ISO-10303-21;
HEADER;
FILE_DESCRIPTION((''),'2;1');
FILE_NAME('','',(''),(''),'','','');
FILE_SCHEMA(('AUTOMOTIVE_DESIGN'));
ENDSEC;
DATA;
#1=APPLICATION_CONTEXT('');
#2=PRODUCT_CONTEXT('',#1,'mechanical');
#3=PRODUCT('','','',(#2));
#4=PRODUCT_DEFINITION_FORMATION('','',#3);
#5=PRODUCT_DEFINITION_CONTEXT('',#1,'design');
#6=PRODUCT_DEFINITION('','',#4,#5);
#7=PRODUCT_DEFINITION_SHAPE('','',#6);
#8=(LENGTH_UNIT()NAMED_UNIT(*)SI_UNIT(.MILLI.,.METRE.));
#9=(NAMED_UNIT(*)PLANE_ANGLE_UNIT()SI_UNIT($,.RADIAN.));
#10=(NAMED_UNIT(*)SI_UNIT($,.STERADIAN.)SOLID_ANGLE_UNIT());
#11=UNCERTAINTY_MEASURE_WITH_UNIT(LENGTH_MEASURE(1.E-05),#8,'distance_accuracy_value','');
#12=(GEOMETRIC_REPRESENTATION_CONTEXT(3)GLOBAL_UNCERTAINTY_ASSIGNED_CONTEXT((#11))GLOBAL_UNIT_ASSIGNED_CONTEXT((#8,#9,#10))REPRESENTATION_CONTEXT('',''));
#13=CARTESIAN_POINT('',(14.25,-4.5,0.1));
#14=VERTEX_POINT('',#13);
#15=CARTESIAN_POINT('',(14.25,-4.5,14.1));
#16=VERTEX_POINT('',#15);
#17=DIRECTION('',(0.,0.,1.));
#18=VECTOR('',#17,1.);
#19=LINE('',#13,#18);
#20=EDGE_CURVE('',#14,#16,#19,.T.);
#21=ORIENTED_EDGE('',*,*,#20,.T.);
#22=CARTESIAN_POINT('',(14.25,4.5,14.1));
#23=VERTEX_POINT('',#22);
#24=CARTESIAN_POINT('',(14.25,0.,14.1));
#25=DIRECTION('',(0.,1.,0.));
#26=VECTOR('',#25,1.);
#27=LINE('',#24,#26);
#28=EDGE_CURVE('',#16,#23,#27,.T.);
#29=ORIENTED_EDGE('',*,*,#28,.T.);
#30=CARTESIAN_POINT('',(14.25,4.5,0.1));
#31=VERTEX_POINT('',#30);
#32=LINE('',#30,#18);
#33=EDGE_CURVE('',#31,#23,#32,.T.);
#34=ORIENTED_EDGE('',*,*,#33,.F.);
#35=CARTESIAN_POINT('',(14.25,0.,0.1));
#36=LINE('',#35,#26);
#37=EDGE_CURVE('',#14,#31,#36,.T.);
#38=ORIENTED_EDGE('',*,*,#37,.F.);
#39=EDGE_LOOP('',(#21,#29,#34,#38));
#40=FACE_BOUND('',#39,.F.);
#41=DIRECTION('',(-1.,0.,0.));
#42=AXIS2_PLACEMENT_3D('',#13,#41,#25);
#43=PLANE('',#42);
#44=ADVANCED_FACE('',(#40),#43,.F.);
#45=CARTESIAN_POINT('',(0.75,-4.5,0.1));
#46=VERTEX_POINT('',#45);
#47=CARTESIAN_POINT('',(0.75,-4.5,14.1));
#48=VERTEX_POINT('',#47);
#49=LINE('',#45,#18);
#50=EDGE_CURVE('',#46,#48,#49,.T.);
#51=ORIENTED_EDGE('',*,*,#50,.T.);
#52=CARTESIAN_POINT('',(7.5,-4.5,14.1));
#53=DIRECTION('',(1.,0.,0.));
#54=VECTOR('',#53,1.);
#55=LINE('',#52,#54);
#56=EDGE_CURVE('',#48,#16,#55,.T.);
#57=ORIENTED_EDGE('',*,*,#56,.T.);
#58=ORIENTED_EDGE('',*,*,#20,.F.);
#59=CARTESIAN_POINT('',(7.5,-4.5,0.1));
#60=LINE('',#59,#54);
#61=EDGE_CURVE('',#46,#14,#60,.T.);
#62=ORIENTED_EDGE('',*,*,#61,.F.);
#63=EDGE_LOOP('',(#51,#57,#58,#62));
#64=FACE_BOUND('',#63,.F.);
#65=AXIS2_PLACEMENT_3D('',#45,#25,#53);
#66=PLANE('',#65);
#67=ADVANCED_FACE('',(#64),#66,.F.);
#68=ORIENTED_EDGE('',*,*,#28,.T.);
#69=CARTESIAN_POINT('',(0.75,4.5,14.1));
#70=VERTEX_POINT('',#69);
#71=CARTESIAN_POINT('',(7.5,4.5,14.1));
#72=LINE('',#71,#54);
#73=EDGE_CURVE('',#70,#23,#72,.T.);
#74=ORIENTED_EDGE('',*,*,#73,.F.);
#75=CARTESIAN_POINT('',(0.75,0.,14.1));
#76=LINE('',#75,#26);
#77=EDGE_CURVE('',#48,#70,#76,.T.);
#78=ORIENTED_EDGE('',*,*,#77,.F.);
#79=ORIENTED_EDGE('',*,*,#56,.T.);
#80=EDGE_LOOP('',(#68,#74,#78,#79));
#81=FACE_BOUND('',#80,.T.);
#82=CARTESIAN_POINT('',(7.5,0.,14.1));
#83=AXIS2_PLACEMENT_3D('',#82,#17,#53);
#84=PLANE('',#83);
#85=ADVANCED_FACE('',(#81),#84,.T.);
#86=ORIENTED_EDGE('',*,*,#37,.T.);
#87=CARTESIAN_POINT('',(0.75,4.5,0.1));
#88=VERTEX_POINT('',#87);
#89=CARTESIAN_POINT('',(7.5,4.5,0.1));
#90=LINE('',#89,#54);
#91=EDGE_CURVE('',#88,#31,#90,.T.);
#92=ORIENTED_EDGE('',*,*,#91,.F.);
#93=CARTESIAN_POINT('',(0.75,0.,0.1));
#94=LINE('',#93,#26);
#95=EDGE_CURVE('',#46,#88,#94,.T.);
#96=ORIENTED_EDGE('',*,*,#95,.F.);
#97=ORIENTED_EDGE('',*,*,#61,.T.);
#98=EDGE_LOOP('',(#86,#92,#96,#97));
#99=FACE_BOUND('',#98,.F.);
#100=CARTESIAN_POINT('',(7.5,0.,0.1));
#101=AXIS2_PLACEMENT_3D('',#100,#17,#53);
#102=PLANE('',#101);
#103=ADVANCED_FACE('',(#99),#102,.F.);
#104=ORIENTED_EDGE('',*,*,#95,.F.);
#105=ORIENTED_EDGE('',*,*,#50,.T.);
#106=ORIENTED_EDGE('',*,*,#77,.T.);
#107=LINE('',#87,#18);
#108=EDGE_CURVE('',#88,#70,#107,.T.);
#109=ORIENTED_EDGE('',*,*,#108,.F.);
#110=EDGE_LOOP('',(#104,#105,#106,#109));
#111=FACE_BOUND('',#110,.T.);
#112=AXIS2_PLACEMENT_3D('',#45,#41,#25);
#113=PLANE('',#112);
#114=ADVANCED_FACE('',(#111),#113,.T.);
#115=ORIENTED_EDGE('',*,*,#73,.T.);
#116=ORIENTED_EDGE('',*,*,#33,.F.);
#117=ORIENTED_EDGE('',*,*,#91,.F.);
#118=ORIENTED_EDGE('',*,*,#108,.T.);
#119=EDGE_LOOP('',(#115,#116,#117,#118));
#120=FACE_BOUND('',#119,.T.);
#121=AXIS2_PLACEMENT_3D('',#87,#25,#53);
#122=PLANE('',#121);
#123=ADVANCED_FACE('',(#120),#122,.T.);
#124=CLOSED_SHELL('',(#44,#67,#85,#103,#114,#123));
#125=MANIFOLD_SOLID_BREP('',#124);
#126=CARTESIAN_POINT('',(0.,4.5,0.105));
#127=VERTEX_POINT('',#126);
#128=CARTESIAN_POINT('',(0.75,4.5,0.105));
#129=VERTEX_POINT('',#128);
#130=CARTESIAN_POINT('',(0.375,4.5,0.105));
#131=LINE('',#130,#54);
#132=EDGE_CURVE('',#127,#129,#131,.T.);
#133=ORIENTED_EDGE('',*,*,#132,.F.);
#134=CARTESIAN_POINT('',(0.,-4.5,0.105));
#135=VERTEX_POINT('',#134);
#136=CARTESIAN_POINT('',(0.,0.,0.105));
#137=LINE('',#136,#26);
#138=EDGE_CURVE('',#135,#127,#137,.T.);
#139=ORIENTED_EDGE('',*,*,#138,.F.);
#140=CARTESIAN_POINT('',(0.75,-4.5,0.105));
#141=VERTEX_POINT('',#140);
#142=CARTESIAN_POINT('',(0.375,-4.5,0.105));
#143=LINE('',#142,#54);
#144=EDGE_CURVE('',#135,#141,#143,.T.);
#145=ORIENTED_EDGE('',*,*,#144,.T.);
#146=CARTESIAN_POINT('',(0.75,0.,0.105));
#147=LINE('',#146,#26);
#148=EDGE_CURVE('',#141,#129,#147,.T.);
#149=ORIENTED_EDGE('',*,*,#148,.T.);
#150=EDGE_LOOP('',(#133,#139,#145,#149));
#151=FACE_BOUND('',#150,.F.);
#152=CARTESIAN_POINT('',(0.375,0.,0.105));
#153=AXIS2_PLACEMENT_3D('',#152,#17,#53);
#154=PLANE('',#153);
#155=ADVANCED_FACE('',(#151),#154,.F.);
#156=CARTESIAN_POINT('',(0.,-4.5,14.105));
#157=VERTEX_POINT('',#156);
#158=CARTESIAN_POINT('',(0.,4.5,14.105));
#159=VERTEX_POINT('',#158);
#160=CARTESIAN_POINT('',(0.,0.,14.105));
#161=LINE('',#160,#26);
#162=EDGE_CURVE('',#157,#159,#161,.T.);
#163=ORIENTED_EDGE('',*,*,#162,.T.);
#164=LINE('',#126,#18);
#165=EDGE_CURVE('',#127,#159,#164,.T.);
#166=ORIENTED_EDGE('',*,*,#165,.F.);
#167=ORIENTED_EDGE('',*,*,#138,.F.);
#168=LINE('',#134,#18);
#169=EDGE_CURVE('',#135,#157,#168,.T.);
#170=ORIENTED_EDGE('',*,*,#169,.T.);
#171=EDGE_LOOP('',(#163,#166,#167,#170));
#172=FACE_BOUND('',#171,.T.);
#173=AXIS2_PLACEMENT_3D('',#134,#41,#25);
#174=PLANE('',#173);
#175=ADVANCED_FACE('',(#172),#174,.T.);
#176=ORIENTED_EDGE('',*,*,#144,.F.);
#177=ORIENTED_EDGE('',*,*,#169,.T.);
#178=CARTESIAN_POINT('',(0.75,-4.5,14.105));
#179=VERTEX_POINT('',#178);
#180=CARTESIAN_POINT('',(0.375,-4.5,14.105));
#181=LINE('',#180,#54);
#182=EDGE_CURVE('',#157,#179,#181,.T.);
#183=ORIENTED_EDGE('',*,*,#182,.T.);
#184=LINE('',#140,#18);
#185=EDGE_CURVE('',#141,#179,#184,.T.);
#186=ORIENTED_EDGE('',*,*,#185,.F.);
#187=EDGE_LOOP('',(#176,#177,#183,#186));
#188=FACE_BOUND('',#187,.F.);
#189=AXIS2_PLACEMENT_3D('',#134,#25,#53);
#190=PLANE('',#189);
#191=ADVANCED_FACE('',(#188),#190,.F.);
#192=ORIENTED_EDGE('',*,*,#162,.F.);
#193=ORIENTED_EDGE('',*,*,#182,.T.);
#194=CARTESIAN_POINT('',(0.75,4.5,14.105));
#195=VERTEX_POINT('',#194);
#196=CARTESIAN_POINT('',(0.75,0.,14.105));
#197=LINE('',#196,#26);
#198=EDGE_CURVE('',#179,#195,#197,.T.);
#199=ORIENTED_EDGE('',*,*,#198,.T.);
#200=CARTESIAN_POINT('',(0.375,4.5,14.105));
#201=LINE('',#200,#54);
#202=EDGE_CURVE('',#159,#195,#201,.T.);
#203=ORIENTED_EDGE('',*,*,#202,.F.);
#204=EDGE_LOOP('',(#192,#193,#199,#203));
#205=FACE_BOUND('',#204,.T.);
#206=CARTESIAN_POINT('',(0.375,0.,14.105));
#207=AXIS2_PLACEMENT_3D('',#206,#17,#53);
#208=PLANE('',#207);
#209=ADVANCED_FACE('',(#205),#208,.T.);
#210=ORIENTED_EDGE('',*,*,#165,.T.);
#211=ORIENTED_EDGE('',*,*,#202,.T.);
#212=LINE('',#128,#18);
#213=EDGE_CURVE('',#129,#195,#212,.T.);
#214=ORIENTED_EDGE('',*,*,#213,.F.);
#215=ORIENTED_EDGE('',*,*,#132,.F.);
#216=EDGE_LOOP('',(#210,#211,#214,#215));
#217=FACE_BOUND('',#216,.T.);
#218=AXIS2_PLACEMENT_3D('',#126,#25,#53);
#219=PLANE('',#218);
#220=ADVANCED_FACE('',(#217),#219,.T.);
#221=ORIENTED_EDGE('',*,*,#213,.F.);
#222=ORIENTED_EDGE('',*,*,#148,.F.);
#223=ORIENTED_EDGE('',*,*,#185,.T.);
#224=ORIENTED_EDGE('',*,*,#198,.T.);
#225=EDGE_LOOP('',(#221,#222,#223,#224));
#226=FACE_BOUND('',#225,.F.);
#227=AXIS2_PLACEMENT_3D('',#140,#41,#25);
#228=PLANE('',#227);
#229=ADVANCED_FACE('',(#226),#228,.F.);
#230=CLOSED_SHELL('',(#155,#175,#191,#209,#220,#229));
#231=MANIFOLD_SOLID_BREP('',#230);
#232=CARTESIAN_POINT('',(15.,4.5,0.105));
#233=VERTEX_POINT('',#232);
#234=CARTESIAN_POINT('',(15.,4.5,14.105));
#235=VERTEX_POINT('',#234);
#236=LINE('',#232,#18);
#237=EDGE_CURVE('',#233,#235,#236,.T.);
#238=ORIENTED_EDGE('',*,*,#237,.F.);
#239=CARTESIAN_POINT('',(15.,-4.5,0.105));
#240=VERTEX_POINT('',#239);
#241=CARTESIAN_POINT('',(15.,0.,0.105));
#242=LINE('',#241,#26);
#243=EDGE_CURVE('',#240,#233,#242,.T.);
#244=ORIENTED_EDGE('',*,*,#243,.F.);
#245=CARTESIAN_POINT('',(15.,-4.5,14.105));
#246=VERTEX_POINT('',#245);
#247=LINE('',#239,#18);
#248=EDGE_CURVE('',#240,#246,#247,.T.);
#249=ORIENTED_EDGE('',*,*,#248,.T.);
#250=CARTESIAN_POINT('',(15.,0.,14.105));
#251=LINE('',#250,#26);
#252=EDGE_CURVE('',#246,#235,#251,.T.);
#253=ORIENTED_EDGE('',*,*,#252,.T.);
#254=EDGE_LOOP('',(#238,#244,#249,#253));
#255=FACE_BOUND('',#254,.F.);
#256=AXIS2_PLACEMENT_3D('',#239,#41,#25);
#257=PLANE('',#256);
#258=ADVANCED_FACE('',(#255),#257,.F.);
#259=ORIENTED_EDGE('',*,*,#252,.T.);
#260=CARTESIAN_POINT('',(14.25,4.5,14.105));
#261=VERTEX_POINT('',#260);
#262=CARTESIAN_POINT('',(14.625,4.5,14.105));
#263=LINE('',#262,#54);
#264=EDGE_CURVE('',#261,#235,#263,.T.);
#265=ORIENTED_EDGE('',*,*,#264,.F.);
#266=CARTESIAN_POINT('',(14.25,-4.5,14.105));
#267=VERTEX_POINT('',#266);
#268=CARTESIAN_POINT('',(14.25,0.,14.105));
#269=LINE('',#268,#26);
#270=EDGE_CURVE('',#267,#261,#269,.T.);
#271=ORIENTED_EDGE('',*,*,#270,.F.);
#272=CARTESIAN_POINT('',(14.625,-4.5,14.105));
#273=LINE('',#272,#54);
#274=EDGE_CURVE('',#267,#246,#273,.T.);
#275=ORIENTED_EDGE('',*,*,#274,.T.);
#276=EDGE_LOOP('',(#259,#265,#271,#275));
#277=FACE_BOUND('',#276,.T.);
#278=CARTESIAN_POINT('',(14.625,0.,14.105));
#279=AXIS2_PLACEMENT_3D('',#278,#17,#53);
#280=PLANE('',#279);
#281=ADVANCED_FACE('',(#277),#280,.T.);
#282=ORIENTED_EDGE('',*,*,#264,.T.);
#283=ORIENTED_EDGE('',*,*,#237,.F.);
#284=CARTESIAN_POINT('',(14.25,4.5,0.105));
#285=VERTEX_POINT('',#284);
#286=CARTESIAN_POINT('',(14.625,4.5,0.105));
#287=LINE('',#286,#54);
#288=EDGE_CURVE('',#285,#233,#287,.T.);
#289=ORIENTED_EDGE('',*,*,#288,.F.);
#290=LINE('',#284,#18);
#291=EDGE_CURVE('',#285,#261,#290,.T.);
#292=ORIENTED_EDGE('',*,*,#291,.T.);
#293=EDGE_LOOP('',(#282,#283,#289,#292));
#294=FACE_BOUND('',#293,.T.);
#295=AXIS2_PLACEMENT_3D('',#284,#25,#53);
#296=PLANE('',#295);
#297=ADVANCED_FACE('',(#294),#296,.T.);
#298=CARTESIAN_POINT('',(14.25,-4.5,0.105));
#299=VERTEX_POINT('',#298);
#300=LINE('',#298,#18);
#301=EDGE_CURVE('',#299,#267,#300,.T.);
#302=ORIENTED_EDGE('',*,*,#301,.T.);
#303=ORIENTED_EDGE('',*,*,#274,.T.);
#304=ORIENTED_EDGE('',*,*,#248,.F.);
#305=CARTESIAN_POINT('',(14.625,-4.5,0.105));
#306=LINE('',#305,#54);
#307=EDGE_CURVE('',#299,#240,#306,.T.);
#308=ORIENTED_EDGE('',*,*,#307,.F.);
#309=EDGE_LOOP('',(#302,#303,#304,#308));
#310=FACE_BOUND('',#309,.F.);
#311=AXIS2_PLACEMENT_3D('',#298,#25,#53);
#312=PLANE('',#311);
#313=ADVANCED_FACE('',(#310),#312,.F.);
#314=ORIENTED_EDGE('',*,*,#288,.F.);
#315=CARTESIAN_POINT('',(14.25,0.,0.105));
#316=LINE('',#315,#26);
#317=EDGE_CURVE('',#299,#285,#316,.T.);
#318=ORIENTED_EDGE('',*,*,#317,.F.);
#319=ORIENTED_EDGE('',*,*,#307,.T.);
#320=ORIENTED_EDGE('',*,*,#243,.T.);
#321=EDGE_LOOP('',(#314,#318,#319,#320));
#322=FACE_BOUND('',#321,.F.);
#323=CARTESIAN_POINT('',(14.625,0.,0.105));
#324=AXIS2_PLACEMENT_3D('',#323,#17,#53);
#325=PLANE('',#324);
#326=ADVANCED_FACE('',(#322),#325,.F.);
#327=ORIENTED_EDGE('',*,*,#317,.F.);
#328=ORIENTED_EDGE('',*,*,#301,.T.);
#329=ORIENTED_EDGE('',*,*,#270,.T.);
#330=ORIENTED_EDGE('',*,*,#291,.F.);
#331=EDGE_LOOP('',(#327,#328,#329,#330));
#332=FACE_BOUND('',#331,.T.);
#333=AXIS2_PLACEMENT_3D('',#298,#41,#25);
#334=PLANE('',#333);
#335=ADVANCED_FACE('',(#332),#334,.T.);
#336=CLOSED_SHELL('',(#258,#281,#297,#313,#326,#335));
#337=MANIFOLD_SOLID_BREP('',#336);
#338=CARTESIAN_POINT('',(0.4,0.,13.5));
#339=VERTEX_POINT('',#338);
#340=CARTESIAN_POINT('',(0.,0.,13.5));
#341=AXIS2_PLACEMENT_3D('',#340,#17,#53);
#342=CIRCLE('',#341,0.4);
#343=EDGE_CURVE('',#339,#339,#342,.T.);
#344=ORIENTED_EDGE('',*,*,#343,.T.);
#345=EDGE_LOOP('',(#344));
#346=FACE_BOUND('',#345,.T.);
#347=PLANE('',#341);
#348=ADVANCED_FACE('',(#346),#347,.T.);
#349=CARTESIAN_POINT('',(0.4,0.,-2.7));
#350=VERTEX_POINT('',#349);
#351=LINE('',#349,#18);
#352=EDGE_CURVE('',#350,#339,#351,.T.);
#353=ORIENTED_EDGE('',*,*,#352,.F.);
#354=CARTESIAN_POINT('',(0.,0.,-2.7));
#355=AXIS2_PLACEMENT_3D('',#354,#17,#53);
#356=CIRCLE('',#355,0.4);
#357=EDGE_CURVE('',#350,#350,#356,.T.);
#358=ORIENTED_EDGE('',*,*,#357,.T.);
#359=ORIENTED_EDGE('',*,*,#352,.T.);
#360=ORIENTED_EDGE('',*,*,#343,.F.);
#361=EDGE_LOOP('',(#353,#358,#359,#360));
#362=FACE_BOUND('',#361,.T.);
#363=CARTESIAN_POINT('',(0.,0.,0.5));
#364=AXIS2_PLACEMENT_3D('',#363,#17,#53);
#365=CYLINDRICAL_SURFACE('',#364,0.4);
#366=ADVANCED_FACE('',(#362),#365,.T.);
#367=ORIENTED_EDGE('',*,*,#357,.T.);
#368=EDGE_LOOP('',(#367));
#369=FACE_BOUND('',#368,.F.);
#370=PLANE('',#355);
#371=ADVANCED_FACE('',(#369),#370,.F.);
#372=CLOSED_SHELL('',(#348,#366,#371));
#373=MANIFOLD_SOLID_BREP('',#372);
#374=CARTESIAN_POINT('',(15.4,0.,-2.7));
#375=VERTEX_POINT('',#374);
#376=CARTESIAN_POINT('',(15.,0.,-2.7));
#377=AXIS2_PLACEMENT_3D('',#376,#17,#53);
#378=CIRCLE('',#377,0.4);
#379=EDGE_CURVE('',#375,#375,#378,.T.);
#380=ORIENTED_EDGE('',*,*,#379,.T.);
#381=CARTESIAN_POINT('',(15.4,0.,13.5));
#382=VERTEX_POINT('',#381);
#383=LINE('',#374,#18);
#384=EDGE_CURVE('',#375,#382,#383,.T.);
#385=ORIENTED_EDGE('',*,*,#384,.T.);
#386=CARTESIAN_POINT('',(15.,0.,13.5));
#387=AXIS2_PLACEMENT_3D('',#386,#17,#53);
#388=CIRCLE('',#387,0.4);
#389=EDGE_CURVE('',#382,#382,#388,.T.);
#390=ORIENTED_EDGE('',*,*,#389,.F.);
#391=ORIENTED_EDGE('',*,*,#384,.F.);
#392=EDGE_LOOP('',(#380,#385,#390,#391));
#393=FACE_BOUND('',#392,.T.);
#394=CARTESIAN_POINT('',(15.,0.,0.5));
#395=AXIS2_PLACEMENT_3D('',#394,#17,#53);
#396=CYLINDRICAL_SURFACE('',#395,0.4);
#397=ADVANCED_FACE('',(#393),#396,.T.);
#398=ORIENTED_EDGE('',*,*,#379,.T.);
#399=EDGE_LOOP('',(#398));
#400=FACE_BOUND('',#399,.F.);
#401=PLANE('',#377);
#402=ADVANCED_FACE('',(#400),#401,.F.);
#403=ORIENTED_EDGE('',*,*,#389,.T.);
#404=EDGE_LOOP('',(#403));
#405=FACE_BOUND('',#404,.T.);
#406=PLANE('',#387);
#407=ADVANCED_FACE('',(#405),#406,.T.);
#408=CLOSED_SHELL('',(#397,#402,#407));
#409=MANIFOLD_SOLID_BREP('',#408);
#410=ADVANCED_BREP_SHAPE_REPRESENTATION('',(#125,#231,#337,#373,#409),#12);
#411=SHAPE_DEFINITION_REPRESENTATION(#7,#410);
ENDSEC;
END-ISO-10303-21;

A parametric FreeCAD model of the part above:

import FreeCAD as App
import Part
import Sketcher
from FreeCAD import Vector

doc = App.newDocument("Part")
body = doc.addObject("PartDesign::Body", "Body")

sketch1 = body.newObject("Sketcher::SketchObject", "Sketch")
sketch1.AttachmentSupport = (doc.getObject("XY_Plane"), [""])
sketch1.MapMode = "FlatFace"
sketch1.AttachmentOffset = App.Placement(Vector(0, 0, 0.1), App.Rotation())
sketch1.addGeometry(Part.LineSegment(Vector(0.75, 4.5, 0), Vector(0.75, -4.5, 0)), False)
sketch1.addGeometry(Part.LineSegment(Vector(0.75, -4.5, 0), Vector(14.25, -4.5, 0)), False)
sketch1.addGeometry(Part.LineSegment(Vector(14.25, -4.5, 0), Vector(14.25, 4.5, 0)), False)
sketch1.addGeometry(Part.LineSegment(Vector(14.25, 4.5, 0), Vector(0.75, 4.5, 0)), False)
sketch1.addConstraint(Sketcher.Constraint("Coincident", 0, 2, 1, 1))
sketch1.addConstraint(Sketcher.Constraint("Coincident", 1, 2, 2, 1))
sketch1.addConstraint(Sketcher.Constraint("Coincident", 2, 2, 3, 1))
sketch1.addConstraint(Sketcher.Constraint("Coincident", 3, 2, 0, 1))
sketch1.addConstraint(Sketcher.Constraint("Vertical", 0))
sketch1.addConstraint(Sketcher.Constraint("Horizontal", 1))
sketch1.addConstraint(Sketcher.Constraint("Vertical", 2))
sketch1.addConstraint(Sketcher.Constraint("Horizontal", 3))
sketch1.addConstraint(Sketcher.Constraint("DistanceY", 0, 2, 0, 1, 9.0))
sketch1.addConstraint(Sketcher.Constraint("DistanceX", 1, 1, 1, 2, 13.5))
sketch1.addConstraint(Sketcher.Constraint("DistanceY", 0, 2, -1, 1, 4.5))
sketch1.addConstraint(Sketcher.Constraint("DistanceX", -1, 1, 0, 2, 0.75))
pad1 = body.newObject("PartDesign::Pad", "Pad")
pad1.Profile = sketch1
pad1.Length = 14
body2 = doc.addObject("PartDesign::Body", "Body001")
body2.AllowCompound = True

sketch2 = body2.newObject("Sketcher::SketchObject", "Sketch001")
sketch2.AttachmentSupport = (doc.getObject("XY_Plane001"), [""])
sketch2.MapMode = "FlatFace"
sketch2.AttachmentOffset = App.Placement(Vector(0, 0, 0.5), App.Rotation())
sketch2.addGeometry(Part.Circle(Vector(0, 0, 0), Vector(0, 0, 1), 0.4), False)
sketch2.addGeometry(Part.Circle(Vector(15, 0, 0), Vector(0, 0, 1), 0.4), False)
sketch2.addConstraint(Sketcher.Constraint("Coincident", 0, 3, -1, 1))
sketch2.addConstraint(Sketcher.Constraint("Equal", 0, 1))
sketch2.addConstraint(Sketcher.Constraint("PointOnObject", 1, 3, -1))
sketch2.addConstraint(Sketcher.Constraint("Diameter", 0, 0.8))
sketch2.addConstraint(Sketcher.Constraint("DistanceX", -1, 1, 1, 3, 15.0))
pad2 = body2.newObject("PartDesign::Pad", "Pad001")
pad2.Profile = sketch2
pad2.Type = "TwoLengths"
pad2.Length = 13
pad2.Length2 = 3.2
body3 = doc.addObject("PartDesign::Body", "Body002")
body3.AllowCompound = True

sketch3 = body3.newObject("Sketcher::SketchObject", "Sketch002")
sketch3.AttachmentSupport = (doc.getObject("XY_Plane002"), [""])
sketch3.MapMode = "FlatFace"
sketch3.AttachmentOffset = App.Placement(Vector(0, 0, 0.105), App.Rotation())
sketch3.addGeometry(Part.LineSegment(Vector(0, 4.5, 0), Vector(0, -4.5, 0)), False)
sketch3.addGeometry(Part.LineSegment(Vector(0, -4.5, 0), Vector(0.75, -4.5, 0)), False)
sketch3.addGeometry(Part.LineSegment(Vector(0.75, -4.5, 0), Vector(0.75, 4.5, 0)), False)
sketch3.addGeometry(Part.LineSegment(Vector(0.75, 4.5, 0), Vector(0, 4.5, 0)), False)
sketch3.addGeometry(Part.LineSegment(Vector(14.25, 4.5, 0), Vector(14.25, -4.5, 0)), False)
sketch3.addGeometry(Part.LineSegment(Vector(14.25, -4.5, 0), Vector(15, -4.5, 0)), False)
sketch3.addGeometry(Part.LineSegment(Vector(15, -4.5, 0), Vector(15, 4.5, 0)), False)
sketch3.addGeometry(Part.LineSegment(Vector(15, 4.5, 0), Vector(14.25, 4.5, 0)), False)
sketch3.addConstraint(Sketcher.Constraint("Coincident", 0, 2, 1, 1))
sketch3.addConstraint(Sketcher.Constraint("Coincident", 1, 2, 2, 1))
sketch3.addConstraint(Sketcher.Constraint("Coincident", 2, 2, 3, 1))
sketch3.addConstraint(Sketcher.Constraint("Coincident", 3, 2, 0, 1))
sketch3.addConstraint(Sketcher.Constraint("Coincident", 4, 2, 5, 1))
sketch3.addConstraint(Sketcher.Constraint("Coincident", 5, 2, 6, 1))
sketch3.addConstraint(Sketcher.Constraint("Coincident", 6, 2, 7, 1))
sketch3.addConstraint(Sketcher.Constraint("Coincident", 7, 2, 4, 1))
sketch3.addConstraint(Sketcher.Constraint("Vertical", 0))
sketch3.addConstraint(Sketcher.Constraint("Horizontal", 1))
sketch3.addConstraint(Sketcher.Constraint("Vertical", 2))
sketch3.addConstraint(Sketcher.Constraint("Horizontal", 3))
sketch3.addConstraint(Sketcher.Constraint("Vertical", 4))
sketch3.addConstraint(Sketcher.Constraint("Horizontal", 5))
sketch3.addConstraint(Sketcher.Constraint("Vertical", 6))
sketch3.addConstraint(Sketcher.Constraint("Horizontal", 7))
sketch3.addConstraint(Sketcher.Constraint("Symmetric", 0, 2, 3, 2, -1, 1))
sketch3.addConstraint(Sketcher.Constraint("Horizontal", 1, 2, 4, 2))
sketch3.addConstraint(Sketcher.Constraint("Horizontal", 3, 2, 6, 2))
sketch3.addConstraint(Sketcher.Constraint("Equal", 3, 5))
sketch3.addConstraint(Sketcher.Constraint("DistanceY", 0, 2, 0, 1, 9.0))
sketch3.addConstraint(Sketcher.Constraint("DistanceX", -1, 1, 5, 2, 15.0))
sketch3.addConstraint(Sketcher.Constraint("DistanceX", 1, 1, 1, 2, 0.75))
pad3 = body3.newObject("PartDesign::Pad", "Pad002")
pad3.Profile = sketch3
pad3.Length = 14

doc.recompute()
